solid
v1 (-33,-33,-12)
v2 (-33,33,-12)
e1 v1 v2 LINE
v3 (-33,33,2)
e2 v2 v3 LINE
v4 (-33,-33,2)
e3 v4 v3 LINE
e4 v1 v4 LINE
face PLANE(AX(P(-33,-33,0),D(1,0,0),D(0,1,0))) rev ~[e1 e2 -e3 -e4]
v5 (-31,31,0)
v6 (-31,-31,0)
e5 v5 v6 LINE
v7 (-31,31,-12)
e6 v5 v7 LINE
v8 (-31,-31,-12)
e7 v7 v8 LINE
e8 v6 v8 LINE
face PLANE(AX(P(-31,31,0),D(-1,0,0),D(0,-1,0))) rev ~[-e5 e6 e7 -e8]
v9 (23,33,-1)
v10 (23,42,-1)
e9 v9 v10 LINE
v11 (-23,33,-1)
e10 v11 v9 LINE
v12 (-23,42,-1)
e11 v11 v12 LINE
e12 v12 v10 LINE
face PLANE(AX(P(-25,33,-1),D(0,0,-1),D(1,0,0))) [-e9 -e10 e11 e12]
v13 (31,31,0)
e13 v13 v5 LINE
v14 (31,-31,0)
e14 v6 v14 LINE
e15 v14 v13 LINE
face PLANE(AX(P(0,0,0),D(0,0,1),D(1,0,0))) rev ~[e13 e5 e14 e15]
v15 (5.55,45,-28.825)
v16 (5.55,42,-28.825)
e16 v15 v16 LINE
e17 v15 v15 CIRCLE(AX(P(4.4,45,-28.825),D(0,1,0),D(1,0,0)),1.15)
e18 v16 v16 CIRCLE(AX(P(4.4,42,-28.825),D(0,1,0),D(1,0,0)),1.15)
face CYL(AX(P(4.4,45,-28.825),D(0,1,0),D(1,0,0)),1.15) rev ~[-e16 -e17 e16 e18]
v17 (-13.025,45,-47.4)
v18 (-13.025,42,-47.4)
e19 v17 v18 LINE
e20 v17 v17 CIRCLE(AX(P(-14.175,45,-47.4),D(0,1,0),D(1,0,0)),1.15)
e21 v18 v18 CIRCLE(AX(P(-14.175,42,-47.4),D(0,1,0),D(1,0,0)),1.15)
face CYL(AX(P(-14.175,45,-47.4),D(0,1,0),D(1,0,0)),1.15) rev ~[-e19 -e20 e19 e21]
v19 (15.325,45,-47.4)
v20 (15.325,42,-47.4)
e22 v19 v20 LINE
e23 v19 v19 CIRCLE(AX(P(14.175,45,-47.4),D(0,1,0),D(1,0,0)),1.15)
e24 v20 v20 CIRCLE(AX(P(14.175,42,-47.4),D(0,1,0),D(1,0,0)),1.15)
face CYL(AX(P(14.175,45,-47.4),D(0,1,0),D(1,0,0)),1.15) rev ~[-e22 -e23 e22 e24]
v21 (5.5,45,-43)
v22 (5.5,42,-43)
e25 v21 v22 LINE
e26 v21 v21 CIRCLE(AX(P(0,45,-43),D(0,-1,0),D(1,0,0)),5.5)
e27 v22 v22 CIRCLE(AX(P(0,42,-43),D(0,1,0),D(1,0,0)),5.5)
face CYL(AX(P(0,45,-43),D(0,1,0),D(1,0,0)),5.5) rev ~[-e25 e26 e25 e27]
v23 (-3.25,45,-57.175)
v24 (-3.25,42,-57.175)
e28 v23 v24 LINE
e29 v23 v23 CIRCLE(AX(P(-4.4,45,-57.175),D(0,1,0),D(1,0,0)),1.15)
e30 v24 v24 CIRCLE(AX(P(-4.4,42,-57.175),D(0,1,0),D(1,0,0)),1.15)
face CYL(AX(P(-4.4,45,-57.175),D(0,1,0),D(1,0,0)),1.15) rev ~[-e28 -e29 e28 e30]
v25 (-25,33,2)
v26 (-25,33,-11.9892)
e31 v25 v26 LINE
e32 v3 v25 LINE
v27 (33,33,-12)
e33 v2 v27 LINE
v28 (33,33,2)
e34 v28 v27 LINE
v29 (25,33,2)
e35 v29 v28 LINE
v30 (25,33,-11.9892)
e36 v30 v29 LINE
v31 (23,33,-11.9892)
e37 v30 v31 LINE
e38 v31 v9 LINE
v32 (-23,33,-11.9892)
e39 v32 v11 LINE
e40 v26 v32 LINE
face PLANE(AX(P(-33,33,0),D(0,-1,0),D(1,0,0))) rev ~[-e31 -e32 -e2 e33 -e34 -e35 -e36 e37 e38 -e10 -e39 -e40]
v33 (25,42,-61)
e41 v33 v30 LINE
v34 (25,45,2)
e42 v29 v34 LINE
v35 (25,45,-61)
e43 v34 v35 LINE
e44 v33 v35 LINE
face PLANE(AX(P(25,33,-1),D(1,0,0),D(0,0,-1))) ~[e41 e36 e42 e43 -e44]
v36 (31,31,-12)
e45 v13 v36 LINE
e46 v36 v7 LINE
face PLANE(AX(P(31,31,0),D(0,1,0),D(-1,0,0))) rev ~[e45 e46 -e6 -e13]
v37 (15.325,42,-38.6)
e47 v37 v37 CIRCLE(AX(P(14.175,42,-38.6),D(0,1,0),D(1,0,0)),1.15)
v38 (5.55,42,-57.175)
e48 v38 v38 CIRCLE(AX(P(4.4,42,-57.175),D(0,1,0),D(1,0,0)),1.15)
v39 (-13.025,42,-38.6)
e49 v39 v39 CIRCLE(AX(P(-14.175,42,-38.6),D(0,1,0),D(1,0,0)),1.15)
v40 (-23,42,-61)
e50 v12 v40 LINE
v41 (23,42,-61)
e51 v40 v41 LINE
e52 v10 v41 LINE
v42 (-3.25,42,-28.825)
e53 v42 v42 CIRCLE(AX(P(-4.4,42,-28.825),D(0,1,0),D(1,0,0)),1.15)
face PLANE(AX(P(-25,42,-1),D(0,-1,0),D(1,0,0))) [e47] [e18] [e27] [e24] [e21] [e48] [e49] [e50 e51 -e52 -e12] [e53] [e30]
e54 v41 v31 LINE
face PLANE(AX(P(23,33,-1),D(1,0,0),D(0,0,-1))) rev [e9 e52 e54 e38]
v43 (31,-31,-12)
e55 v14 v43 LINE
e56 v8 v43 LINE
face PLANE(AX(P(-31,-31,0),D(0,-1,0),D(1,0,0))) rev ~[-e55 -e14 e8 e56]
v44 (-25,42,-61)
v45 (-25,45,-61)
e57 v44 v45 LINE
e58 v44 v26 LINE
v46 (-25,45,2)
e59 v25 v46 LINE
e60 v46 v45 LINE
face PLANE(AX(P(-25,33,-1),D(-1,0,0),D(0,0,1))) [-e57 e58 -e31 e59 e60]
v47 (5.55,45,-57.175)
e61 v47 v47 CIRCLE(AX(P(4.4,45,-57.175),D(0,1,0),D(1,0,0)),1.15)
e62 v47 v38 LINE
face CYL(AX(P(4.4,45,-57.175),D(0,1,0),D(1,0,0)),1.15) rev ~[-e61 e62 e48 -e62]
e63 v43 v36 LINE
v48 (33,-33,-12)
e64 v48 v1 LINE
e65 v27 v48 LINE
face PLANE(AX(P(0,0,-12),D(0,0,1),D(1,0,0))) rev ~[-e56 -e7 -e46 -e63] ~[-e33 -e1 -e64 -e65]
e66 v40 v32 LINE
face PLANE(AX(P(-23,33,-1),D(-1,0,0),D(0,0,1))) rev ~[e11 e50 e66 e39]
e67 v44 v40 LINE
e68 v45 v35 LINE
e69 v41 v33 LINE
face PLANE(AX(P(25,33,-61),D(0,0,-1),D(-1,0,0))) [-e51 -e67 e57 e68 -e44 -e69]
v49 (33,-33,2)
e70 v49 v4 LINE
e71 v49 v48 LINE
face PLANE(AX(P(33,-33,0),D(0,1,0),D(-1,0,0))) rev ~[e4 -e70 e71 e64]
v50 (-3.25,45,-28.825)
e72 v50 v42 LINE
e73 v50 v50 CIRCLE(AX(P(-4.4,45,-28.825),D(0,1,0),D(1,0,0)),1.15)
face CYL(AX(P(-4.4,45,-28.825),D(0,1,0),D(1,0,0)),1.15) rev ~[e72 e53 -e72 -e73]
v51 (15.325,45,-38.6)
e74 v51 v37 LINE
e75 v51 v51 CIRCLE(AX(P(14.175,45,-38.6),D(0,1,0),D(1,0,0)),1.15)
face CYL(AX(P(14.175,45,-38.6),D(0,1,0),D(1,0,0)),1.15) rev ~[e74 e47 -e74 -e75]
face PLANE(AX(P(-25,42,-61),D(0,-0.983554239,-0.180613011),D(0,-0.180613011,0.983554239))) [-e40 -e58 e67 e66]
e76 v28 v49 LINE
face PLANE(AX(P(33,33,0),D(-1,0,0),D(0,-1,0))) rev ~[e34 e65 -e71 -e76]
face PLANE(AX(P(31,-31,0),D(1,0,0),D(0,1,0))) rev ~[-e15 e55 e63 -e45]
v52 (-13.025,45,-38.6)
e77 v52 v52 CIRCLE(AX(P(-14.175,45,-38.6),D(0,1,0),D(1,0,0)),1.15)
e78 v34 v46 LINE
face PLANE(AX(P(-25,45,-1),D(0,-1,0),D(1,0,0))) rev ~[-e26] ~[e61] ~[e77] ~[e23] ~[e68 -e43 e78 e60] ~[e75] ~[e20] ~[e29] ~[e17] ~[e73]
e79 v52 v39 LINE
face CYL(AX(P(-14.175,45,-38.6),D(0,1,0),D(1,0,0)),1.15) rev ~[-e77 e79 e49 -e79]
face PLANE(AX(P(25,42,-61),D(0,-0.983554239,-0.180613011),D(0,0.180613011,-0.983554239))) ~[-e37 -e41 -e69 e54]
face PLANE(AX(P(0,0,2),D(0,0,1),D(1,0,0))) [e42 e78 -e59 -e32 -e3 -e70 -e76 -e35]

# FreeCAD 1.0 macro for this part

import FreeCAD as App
import Part
import Sketcher
from FreeCAD import Vector
Q = App.Units.Quantity

doc = App.newDocument("Part")
body = doc.addObject("PartDesign::Body", "Body")

# Sketch on XY plane
sketch1 = doc.addObject("Sketcher::SketchObject", "Sketch")
body.addObject(sketch1)
sketch1.AttachmentSupport = (doc.XY_Plane, [""])
sketch1.MapMode = "FlatFace"
sketch1.addGeometry([
    Part.LineSegment(Vector(33, 33, 0), Vector(-33, 33, 0)),
    Part.LineSegment(Vector(-33, 33, 0), Vector(-33, -33, 0)),
    Part.LineSegment(Vector(-33, -33, 0), Vector(33, -33, 0)),
    Part.LineSegment(Vector(33, -33, 0), Vector(33, 33, 0)),
], False)
sketch1.addConstraint([
    Sketcher.Constraint("Coincident", 0, 2, 1, 1),
    Sketcher.Constraint("Coincident", 1, 2, 2, 1),
    Sketcher.Constraint("Coincident", 2, 2, 3, 1),
    Sketcher.Constraint("Coincident", 3, 2, 0, 1),
    Sketcher.Constraint("Horizontal", 0),
    Sketcher.Constraint("Vertical", 1),
    Sketcher.Constraint("Horizontal", 2),
    Sketcher.Constraint("Vertical", 3),
    Sketcher.Constraint("Symmetric", 0, 2, 2, 2, -1, 1),
    Sketcher.Constraint("Equal", 2, 1),
    Sketcher.Constraint("DistanceX", 0, 2, 0, 1, Q("66 mm")),
])
pad1 = doc.addObject("PartDesign::Pad", "Pad")
body.addObject(pad1)
pad1.Profile = sketch1
pad1.Length = 2

# Sketch on XY plane
sketch2 = doc.addObject("Sketcher::SketchObject", "Sketch001")
body.addObject(sketch2)
sketch2.AttachmentSupport = (doc.XY_Plane, [""])
sketch2.MapMode = "FlatFace"
sketch2.addGeometry([
    Part.LineSegment(Vector(33, 33, 0), Vector(-33, 33, 0)),  # 0
    Part.LineSegment(Vector(-33, 33, 0), Vector(-33, -33, 0)),  # 1
    Part.LineSegment(Vector(-33, -33, 0), Vector(33, -33, 0)),  # 2
    Part.LineSegment(Vector(33, -33, 0), Vector(33, 33, 0)),  # 3
    Part.LineSegment(Vector(31, -31, 0), Vector(-31, -31, 0)),  # 4
    Part.LineSegment(Vector(-31, -31, 0), Vector(-31, 31, 0)),  # 5
    Part.LineSegment(Vector(-31, 31, 0), Vector(31, 31, 0)),  # 6
    Part.LineSegment(Vector(31, 31, 0), Vector(31, -31, 0)),  # 7
], False)
sketch2.addConstraint([
    Sketcher.Constraint("Coincident", 0, 2, 1, 1),
    Sketcher.Constraint("Coincident", 1, 2, 2, 1),
    Sketcher.Constraint("Coincident", 2, 2, 3, 1),
    Sketcher.Constraint("Coincident", 3, 2, 0, 1),
    Sketcher.Constraint("Coincident", 4, 2, 5, 1),
    Sketcher.Constraint("Coincident", 5, 2, 6, 1),
    Sketcher.Constraint("Coincident", 6, 2, 7, 1),
    Sketcher.Constraint("Coincident", 7, 2, 4, 1),
    Sketcher.Constraint("Horizontal", 0),
    Sketcher.Constraint("Vertical", 1),
    Sketcher.Constraint("Horizontal", 2),
    Sketcher.Constraint("Vertical", 3),
    Sketcher.Constraint("Horizontal", 4),
    Sketcher.Constraint("Vertical", 5),
    Sketcher.Constraint("Horizontal", 6),
    Sketcher.Constraint("Vertical", 7),
    Sketcher.Constraint("Symmetric", 0, 2, 2, 2, -1, 1),
    Sketcher.Constraint("Symmetric", 4, 2, 6, 2, -1, 1),
    Sketcher.Constraint("Equal", 2, 1),
    Sketcher.Constraint("Equal", 6, 5),
    Sketcher.Constraint("DistanceX", 4, 2, 4, 1, Q("62 mm")),
    Sketcher.Constraint("DistanceX", 1, 2, 4, 2, Q("2 mm")),
])
pad2 = doc.addObject("PartDesign::Pad", "Pad001")
body.addObject(pad2)
pad2.Profile = sketch2
pad2.Length = 12
pad2.Reversed = True

# Sketch on XZ plane
sketch3 = doc.addObject("Sketcher::SketchObject", "Sketch002")
body.addObject(sketch3)
sketch3.AttachmentSupport = (doc.XZ_Plane, [""])
sketch3.MapMode = "FlatFace"
sketch3.AttachmentOffset = App.Placement(Vector(0, 0, -33), App.Rotation())
sketch3.addGeometry([
    Part.LineSegment(Vector(25, -1, 0), Vector(-25, -1, 0)),
    Part.LineSegment(Vector(-25, -1, 0), Vector(-25, 2, 0)),
    Part.LineSegment(Vector(-25, 2, 0), Vector(25, 2, 0)),
    Part.LineSegment(Vector(25, 2, 0), Vector(25, -1, 0)),
], False)
sketch3.addConstraint([
    Sketcher.Constraint("Coincident", 0, 2, 1, 1),
    Sketcher.Constraint("Coincident", 1, 2, 2, 1),
    Sketcher.Constraint("Coincident", 2, 2, 3, 1),
    Sketcher.Constraint("Coincident", 3, 2, 0, 1),
    Sketcher.Constraint("Horizontal", 0),
    Sketcher.Constraint("Vertical", 1),
    Sketcher.Constraint("Horizontal", 2),
    Sketcher.Constraint("Vertical", 3),
    Sketcher.Constraint("DistanceX", 0, 2, 0, 1, Q("50 mm")),
    Sketcher.Constraint("DistanceY", 1, 1, 1, 2, Q("3 mm")),
    Sketcher.Constraint("DistanceX", 0, 2, -1, 1, Q("25 mm")),
    Sketcher.Constraint("DistanceY", 0, 2, -1, 1, Q("1 mm")),
])
pad3 = doc.addObject("PartDesign::Pad", "Pad002")
body.addObject(pad3)
pad3.Profile = sketch3
pad3.Length = 12
pad3.Reversed = True

# Sketch on XY plane
sketch4 = doc.addObject("Sketcher::SketchObject", "Sketch003")
body.addObject(sketch4)
sketch4.AttachmentSupport = (doc.XY_Plane, [""])
sketch4.MapMode = "FlatFace"
sketch4.AttachmentOffset = App.Placement(Vector(0, 0, -1), App.Rotation())
sketch4.addGeometry([
    Part.LineSegment(Vector(-25, 42, 0), Vector(-25, 45, 0)),
    Part.LineSegment(Vector(-25, 45, 0), Vector(25, 45, 0)),
    Part.LineSegment(Vector(25, 45, 0), Vector(25, 42, 0)),
    Part.LineSegment(Vector(25, 42, 0), Vector(-25, 42, 0)),
], False)
sketch4.addConstraint([
    Sketcher.Constraint("Coincident", 0, 2, 1, 1),
    Sketcher.Constraint("Coincident", 1, 2, 2, 1),
    Sketcher.Constraint("Coincident", 2, 2, 3, 1),
    Sketcher.Constraint("Coincident", 3, 2, 0, 1),
    Sketcher.Constraint("Vertical", 0),
    Sketcher.Constraint("Horizontal", 1),
    Sketcher.Constraint("Vertical", 2),
    Sketcher.Constraint("Horizontal", 3),
    Sketcher.Constraint("DistanceY", 0, 1, 0, 2, Q("3 mm")),
    Sketcher.Constraint("DistanceX", 1, 1, 1, 2, Q("50 mm")),
    Sketcher.Constraint("DistanceX", 0, 2, -1, 1, Q("25 mm")),
    Sketcher.Constraint("DistanceY", -1, 1, 0, 2, Q("45 mm")),
])
pad4 = doc.addObject("PartDesign::Pad", "Pad003")
body.addObject(pad4)
pad4.Profile = sketch4
pad4.Length = 60
pad4.Reversed = True

# Sketch on YZ plane
sketch5 = doc.addObject("Sketcher::SketchObject", "Sketch004")
body.addObject(sketch5)
sketch5.AttachmentSupport = (doc.YZ_Plane, [""])
sketch5.MapMode = "FlatFace"
sketch5.AttachmentOffset = App.Placement(Vector(0, 0, -25), App.Rotation())
sketch5.addGeometry([
    Part.LineSegment(Vector(33, -1, 0), Vector(42, -1, 0)),
    Part.LineSegment(Vector(42, -1, 0), Vector(42, -61, 0)),
    Part.LineSegment(Vector(42, -61, 0), Vector(33, -12, 0)),
    Part.LineSegment(Vector(33, -12, 0), Vector(33, -1, 0)),
], False)
sketch5.addConstraint([
    Sketcher.Constraint("Coincident", 0, 2, 1, 1),
    Sketcher.Constraint("Coincident", 1, 2, 2, 1),
    Sketcher.Constraint("Coincident", 2, 2, 3, 1),
    Sketcher.Constraint("Coincident", 3, 2, 0, 1),
    Sketcher.Constraint("Horizontal", 0),
    Sketcher.Constraint("Vertical", 1),
    Sketcher.Constraint("Vertical", 3),
    Sketcher.Constraint("DistanceX", 0, 1, 0, 2, Q("9 mm")),
    Sketcher.Constraint("DistanceY", 1, 2, 1, 1, Q("60 mm")),
    Sketcher.Constraint("DistanceX", -1, 1, 0, 2, Q("42 mm")),
    Sketcher.Constraint("DistanceY", 0, 2, -1, 1, Q("1 mm")),
    Sketcher.Constraint("DistanceY", 3, 1, 3, 2, Q("10.9892 mm")),
])
pad5 = doc.addObject("PartDesign::Pad", "Pad004")
body.addObject(pad5)
pad5.Profile = sketch5
pad5.Length = 2
doc.recompute()

mirrored = doc.addObject("PartDesign::Mirrored", "Mirrored")
body.addObject(mirrored)
mirrored.Originals = [pad5]
mirrored.MirrorPlane = (doc.YZ_Plane, [""])
body.Tip = mirrored

# Sketch on XZ plane
sketch6 = doc.addObject("Sketcher::SketchObject", "Sketch005")
body.addObject(sketch6)
sketch6.AttachmentSupport = (doc.XZ_Plane, [""])
sketch6.MapMode = "FlatFace"
sketch6.AttachmentOffset = App.Placement(Vector(0, 0, -45), App.Rotation())
sketch6.addGeometry([
    Part.Circle(Vector(-14.2, -38.6, 0), Vector(0, 0, 1), 1.1),  # 0
    Part.Circle(Vector(14.2, -47.4, 0), Vector(0, 0, 1), 1.1),  # 1
    Part.Circle(Vector(-14.2, -47.4, 0), Vector(0, 0, 1), 1.1),  # 2
    Part.Circle(Vector(-4.4, -28.8, 0), Vector(0, 0, 1), 1.1),  # 3
    Part.Circle(Vector(4.4, -28.8, 0), Vector(0, 0, 1), 1.1),  # 4
    Part.Circle(Vector(-4.4, -57.2, 0), Vector(0, 0, 1), 1.1),  # 5
    Part.Circle(Vector(14.2, -38.6, 0), Vector(0, 0, 1), 1.1),  # 6
    Part.Circle(Vector(4.4, -57.2, 0), Vector(0, 0, 1), 1.1),  # 7
], False)
sketch6.addConstraint([
    Sketcher.Constraint("Equal", 0, 1),
    Sketcher.Constraint("Equal", 1, 2),
    Sketcher.Constraint("Equal", 2, 3),
    Sketcher.Constraint("Equal", 3, 4),
    Sketcher.Constraint("Equal", 4, 5),
    Sketcher.Constraint("Equal", 5, 6),
    Sketcher.Constraint("Equal", 6, 7),
    Sketcher.Constraint("Symmetric", 1, 3, 2, 3, -2),
    Sketcher.Constraint("Symmetric", 3, 3, 4, 3, -2),
    Sketcher.Constraint("Symmetric", 0, 3, 6, 3, -2),
    Sketcher.Constraint("Symmetric", 5, 3, 7, 3, -2),
    Sketcher.Constraint("Vertical", 0, 3, 2, 3),
    Sketcher.Constraint("Vertical", 3, 3, 5, 3),
    Sketcher.Constraint("Diameter", 0, Q("2.3 mm")),
    Sketcher.Constraint("DistanceX", 3, 3, -1, 1, Q("4.4 mm")),
    Sketcher.Constraint("DistanceY", 0, 3, -1, 1, Q("38.6 mm")),
    Sketcher.Constraint("DistanceY", 1, 3, -1, 1, Q("47.4 mm")),
    Sketcher.Constraint("DistanceX", 0, 3, 1, 3, Q("28.35 mm")),
    Sketcher.Constraint("DistanceY", 5, 3, 3, 3, Q("28.35 mm")),
    Sketcher.Constraint("DistanceY", 3, 3, -1, 1, Q("28.825 mm")),
])
pocket1 = doc.addObject("PartDesign::Pocket", "Pocket")
body.addObject(pocket1)
pocket1.Profile = sketch6
pocket1.Length = 10
pocket1.Reversed = True

# Sketch on XZ plane
sketch7 = doc.addObject("Sketcher::SketchObject", "Sketch006")
body.addObject(sketch7)
sketch7.AttachmentSupport = (doc.XZ_Plane, [""])
sketch7.MapMode = "FlatFace"
sketch7.AttachmentOffset = App.Placement(Vector(0, 0, -45), App.Rotation())
sketch7.addGeometry(Part.Circle(Vector(0, -43, 0), Vector(0, 0, 1), 6), False)
sketch7.addConstraint([
    Sketcher.Constraint("PointOnObject", 0, 3, -2),
    Sketcher.Constraint("Diameter", 0, Q("11 mm")),
    Sketcher.Constraint("DistanceY", 0, 3, -1, 1, Q("43 mm")),
])
pocket2 = doc.addObject("PartDesign::Pocket", "Pocket001")
body.addObject(pocket2)
pocket2.Profile = sketch7
pocket2.Length = 10
pocket2.Reversed = True

doc.recompute()
